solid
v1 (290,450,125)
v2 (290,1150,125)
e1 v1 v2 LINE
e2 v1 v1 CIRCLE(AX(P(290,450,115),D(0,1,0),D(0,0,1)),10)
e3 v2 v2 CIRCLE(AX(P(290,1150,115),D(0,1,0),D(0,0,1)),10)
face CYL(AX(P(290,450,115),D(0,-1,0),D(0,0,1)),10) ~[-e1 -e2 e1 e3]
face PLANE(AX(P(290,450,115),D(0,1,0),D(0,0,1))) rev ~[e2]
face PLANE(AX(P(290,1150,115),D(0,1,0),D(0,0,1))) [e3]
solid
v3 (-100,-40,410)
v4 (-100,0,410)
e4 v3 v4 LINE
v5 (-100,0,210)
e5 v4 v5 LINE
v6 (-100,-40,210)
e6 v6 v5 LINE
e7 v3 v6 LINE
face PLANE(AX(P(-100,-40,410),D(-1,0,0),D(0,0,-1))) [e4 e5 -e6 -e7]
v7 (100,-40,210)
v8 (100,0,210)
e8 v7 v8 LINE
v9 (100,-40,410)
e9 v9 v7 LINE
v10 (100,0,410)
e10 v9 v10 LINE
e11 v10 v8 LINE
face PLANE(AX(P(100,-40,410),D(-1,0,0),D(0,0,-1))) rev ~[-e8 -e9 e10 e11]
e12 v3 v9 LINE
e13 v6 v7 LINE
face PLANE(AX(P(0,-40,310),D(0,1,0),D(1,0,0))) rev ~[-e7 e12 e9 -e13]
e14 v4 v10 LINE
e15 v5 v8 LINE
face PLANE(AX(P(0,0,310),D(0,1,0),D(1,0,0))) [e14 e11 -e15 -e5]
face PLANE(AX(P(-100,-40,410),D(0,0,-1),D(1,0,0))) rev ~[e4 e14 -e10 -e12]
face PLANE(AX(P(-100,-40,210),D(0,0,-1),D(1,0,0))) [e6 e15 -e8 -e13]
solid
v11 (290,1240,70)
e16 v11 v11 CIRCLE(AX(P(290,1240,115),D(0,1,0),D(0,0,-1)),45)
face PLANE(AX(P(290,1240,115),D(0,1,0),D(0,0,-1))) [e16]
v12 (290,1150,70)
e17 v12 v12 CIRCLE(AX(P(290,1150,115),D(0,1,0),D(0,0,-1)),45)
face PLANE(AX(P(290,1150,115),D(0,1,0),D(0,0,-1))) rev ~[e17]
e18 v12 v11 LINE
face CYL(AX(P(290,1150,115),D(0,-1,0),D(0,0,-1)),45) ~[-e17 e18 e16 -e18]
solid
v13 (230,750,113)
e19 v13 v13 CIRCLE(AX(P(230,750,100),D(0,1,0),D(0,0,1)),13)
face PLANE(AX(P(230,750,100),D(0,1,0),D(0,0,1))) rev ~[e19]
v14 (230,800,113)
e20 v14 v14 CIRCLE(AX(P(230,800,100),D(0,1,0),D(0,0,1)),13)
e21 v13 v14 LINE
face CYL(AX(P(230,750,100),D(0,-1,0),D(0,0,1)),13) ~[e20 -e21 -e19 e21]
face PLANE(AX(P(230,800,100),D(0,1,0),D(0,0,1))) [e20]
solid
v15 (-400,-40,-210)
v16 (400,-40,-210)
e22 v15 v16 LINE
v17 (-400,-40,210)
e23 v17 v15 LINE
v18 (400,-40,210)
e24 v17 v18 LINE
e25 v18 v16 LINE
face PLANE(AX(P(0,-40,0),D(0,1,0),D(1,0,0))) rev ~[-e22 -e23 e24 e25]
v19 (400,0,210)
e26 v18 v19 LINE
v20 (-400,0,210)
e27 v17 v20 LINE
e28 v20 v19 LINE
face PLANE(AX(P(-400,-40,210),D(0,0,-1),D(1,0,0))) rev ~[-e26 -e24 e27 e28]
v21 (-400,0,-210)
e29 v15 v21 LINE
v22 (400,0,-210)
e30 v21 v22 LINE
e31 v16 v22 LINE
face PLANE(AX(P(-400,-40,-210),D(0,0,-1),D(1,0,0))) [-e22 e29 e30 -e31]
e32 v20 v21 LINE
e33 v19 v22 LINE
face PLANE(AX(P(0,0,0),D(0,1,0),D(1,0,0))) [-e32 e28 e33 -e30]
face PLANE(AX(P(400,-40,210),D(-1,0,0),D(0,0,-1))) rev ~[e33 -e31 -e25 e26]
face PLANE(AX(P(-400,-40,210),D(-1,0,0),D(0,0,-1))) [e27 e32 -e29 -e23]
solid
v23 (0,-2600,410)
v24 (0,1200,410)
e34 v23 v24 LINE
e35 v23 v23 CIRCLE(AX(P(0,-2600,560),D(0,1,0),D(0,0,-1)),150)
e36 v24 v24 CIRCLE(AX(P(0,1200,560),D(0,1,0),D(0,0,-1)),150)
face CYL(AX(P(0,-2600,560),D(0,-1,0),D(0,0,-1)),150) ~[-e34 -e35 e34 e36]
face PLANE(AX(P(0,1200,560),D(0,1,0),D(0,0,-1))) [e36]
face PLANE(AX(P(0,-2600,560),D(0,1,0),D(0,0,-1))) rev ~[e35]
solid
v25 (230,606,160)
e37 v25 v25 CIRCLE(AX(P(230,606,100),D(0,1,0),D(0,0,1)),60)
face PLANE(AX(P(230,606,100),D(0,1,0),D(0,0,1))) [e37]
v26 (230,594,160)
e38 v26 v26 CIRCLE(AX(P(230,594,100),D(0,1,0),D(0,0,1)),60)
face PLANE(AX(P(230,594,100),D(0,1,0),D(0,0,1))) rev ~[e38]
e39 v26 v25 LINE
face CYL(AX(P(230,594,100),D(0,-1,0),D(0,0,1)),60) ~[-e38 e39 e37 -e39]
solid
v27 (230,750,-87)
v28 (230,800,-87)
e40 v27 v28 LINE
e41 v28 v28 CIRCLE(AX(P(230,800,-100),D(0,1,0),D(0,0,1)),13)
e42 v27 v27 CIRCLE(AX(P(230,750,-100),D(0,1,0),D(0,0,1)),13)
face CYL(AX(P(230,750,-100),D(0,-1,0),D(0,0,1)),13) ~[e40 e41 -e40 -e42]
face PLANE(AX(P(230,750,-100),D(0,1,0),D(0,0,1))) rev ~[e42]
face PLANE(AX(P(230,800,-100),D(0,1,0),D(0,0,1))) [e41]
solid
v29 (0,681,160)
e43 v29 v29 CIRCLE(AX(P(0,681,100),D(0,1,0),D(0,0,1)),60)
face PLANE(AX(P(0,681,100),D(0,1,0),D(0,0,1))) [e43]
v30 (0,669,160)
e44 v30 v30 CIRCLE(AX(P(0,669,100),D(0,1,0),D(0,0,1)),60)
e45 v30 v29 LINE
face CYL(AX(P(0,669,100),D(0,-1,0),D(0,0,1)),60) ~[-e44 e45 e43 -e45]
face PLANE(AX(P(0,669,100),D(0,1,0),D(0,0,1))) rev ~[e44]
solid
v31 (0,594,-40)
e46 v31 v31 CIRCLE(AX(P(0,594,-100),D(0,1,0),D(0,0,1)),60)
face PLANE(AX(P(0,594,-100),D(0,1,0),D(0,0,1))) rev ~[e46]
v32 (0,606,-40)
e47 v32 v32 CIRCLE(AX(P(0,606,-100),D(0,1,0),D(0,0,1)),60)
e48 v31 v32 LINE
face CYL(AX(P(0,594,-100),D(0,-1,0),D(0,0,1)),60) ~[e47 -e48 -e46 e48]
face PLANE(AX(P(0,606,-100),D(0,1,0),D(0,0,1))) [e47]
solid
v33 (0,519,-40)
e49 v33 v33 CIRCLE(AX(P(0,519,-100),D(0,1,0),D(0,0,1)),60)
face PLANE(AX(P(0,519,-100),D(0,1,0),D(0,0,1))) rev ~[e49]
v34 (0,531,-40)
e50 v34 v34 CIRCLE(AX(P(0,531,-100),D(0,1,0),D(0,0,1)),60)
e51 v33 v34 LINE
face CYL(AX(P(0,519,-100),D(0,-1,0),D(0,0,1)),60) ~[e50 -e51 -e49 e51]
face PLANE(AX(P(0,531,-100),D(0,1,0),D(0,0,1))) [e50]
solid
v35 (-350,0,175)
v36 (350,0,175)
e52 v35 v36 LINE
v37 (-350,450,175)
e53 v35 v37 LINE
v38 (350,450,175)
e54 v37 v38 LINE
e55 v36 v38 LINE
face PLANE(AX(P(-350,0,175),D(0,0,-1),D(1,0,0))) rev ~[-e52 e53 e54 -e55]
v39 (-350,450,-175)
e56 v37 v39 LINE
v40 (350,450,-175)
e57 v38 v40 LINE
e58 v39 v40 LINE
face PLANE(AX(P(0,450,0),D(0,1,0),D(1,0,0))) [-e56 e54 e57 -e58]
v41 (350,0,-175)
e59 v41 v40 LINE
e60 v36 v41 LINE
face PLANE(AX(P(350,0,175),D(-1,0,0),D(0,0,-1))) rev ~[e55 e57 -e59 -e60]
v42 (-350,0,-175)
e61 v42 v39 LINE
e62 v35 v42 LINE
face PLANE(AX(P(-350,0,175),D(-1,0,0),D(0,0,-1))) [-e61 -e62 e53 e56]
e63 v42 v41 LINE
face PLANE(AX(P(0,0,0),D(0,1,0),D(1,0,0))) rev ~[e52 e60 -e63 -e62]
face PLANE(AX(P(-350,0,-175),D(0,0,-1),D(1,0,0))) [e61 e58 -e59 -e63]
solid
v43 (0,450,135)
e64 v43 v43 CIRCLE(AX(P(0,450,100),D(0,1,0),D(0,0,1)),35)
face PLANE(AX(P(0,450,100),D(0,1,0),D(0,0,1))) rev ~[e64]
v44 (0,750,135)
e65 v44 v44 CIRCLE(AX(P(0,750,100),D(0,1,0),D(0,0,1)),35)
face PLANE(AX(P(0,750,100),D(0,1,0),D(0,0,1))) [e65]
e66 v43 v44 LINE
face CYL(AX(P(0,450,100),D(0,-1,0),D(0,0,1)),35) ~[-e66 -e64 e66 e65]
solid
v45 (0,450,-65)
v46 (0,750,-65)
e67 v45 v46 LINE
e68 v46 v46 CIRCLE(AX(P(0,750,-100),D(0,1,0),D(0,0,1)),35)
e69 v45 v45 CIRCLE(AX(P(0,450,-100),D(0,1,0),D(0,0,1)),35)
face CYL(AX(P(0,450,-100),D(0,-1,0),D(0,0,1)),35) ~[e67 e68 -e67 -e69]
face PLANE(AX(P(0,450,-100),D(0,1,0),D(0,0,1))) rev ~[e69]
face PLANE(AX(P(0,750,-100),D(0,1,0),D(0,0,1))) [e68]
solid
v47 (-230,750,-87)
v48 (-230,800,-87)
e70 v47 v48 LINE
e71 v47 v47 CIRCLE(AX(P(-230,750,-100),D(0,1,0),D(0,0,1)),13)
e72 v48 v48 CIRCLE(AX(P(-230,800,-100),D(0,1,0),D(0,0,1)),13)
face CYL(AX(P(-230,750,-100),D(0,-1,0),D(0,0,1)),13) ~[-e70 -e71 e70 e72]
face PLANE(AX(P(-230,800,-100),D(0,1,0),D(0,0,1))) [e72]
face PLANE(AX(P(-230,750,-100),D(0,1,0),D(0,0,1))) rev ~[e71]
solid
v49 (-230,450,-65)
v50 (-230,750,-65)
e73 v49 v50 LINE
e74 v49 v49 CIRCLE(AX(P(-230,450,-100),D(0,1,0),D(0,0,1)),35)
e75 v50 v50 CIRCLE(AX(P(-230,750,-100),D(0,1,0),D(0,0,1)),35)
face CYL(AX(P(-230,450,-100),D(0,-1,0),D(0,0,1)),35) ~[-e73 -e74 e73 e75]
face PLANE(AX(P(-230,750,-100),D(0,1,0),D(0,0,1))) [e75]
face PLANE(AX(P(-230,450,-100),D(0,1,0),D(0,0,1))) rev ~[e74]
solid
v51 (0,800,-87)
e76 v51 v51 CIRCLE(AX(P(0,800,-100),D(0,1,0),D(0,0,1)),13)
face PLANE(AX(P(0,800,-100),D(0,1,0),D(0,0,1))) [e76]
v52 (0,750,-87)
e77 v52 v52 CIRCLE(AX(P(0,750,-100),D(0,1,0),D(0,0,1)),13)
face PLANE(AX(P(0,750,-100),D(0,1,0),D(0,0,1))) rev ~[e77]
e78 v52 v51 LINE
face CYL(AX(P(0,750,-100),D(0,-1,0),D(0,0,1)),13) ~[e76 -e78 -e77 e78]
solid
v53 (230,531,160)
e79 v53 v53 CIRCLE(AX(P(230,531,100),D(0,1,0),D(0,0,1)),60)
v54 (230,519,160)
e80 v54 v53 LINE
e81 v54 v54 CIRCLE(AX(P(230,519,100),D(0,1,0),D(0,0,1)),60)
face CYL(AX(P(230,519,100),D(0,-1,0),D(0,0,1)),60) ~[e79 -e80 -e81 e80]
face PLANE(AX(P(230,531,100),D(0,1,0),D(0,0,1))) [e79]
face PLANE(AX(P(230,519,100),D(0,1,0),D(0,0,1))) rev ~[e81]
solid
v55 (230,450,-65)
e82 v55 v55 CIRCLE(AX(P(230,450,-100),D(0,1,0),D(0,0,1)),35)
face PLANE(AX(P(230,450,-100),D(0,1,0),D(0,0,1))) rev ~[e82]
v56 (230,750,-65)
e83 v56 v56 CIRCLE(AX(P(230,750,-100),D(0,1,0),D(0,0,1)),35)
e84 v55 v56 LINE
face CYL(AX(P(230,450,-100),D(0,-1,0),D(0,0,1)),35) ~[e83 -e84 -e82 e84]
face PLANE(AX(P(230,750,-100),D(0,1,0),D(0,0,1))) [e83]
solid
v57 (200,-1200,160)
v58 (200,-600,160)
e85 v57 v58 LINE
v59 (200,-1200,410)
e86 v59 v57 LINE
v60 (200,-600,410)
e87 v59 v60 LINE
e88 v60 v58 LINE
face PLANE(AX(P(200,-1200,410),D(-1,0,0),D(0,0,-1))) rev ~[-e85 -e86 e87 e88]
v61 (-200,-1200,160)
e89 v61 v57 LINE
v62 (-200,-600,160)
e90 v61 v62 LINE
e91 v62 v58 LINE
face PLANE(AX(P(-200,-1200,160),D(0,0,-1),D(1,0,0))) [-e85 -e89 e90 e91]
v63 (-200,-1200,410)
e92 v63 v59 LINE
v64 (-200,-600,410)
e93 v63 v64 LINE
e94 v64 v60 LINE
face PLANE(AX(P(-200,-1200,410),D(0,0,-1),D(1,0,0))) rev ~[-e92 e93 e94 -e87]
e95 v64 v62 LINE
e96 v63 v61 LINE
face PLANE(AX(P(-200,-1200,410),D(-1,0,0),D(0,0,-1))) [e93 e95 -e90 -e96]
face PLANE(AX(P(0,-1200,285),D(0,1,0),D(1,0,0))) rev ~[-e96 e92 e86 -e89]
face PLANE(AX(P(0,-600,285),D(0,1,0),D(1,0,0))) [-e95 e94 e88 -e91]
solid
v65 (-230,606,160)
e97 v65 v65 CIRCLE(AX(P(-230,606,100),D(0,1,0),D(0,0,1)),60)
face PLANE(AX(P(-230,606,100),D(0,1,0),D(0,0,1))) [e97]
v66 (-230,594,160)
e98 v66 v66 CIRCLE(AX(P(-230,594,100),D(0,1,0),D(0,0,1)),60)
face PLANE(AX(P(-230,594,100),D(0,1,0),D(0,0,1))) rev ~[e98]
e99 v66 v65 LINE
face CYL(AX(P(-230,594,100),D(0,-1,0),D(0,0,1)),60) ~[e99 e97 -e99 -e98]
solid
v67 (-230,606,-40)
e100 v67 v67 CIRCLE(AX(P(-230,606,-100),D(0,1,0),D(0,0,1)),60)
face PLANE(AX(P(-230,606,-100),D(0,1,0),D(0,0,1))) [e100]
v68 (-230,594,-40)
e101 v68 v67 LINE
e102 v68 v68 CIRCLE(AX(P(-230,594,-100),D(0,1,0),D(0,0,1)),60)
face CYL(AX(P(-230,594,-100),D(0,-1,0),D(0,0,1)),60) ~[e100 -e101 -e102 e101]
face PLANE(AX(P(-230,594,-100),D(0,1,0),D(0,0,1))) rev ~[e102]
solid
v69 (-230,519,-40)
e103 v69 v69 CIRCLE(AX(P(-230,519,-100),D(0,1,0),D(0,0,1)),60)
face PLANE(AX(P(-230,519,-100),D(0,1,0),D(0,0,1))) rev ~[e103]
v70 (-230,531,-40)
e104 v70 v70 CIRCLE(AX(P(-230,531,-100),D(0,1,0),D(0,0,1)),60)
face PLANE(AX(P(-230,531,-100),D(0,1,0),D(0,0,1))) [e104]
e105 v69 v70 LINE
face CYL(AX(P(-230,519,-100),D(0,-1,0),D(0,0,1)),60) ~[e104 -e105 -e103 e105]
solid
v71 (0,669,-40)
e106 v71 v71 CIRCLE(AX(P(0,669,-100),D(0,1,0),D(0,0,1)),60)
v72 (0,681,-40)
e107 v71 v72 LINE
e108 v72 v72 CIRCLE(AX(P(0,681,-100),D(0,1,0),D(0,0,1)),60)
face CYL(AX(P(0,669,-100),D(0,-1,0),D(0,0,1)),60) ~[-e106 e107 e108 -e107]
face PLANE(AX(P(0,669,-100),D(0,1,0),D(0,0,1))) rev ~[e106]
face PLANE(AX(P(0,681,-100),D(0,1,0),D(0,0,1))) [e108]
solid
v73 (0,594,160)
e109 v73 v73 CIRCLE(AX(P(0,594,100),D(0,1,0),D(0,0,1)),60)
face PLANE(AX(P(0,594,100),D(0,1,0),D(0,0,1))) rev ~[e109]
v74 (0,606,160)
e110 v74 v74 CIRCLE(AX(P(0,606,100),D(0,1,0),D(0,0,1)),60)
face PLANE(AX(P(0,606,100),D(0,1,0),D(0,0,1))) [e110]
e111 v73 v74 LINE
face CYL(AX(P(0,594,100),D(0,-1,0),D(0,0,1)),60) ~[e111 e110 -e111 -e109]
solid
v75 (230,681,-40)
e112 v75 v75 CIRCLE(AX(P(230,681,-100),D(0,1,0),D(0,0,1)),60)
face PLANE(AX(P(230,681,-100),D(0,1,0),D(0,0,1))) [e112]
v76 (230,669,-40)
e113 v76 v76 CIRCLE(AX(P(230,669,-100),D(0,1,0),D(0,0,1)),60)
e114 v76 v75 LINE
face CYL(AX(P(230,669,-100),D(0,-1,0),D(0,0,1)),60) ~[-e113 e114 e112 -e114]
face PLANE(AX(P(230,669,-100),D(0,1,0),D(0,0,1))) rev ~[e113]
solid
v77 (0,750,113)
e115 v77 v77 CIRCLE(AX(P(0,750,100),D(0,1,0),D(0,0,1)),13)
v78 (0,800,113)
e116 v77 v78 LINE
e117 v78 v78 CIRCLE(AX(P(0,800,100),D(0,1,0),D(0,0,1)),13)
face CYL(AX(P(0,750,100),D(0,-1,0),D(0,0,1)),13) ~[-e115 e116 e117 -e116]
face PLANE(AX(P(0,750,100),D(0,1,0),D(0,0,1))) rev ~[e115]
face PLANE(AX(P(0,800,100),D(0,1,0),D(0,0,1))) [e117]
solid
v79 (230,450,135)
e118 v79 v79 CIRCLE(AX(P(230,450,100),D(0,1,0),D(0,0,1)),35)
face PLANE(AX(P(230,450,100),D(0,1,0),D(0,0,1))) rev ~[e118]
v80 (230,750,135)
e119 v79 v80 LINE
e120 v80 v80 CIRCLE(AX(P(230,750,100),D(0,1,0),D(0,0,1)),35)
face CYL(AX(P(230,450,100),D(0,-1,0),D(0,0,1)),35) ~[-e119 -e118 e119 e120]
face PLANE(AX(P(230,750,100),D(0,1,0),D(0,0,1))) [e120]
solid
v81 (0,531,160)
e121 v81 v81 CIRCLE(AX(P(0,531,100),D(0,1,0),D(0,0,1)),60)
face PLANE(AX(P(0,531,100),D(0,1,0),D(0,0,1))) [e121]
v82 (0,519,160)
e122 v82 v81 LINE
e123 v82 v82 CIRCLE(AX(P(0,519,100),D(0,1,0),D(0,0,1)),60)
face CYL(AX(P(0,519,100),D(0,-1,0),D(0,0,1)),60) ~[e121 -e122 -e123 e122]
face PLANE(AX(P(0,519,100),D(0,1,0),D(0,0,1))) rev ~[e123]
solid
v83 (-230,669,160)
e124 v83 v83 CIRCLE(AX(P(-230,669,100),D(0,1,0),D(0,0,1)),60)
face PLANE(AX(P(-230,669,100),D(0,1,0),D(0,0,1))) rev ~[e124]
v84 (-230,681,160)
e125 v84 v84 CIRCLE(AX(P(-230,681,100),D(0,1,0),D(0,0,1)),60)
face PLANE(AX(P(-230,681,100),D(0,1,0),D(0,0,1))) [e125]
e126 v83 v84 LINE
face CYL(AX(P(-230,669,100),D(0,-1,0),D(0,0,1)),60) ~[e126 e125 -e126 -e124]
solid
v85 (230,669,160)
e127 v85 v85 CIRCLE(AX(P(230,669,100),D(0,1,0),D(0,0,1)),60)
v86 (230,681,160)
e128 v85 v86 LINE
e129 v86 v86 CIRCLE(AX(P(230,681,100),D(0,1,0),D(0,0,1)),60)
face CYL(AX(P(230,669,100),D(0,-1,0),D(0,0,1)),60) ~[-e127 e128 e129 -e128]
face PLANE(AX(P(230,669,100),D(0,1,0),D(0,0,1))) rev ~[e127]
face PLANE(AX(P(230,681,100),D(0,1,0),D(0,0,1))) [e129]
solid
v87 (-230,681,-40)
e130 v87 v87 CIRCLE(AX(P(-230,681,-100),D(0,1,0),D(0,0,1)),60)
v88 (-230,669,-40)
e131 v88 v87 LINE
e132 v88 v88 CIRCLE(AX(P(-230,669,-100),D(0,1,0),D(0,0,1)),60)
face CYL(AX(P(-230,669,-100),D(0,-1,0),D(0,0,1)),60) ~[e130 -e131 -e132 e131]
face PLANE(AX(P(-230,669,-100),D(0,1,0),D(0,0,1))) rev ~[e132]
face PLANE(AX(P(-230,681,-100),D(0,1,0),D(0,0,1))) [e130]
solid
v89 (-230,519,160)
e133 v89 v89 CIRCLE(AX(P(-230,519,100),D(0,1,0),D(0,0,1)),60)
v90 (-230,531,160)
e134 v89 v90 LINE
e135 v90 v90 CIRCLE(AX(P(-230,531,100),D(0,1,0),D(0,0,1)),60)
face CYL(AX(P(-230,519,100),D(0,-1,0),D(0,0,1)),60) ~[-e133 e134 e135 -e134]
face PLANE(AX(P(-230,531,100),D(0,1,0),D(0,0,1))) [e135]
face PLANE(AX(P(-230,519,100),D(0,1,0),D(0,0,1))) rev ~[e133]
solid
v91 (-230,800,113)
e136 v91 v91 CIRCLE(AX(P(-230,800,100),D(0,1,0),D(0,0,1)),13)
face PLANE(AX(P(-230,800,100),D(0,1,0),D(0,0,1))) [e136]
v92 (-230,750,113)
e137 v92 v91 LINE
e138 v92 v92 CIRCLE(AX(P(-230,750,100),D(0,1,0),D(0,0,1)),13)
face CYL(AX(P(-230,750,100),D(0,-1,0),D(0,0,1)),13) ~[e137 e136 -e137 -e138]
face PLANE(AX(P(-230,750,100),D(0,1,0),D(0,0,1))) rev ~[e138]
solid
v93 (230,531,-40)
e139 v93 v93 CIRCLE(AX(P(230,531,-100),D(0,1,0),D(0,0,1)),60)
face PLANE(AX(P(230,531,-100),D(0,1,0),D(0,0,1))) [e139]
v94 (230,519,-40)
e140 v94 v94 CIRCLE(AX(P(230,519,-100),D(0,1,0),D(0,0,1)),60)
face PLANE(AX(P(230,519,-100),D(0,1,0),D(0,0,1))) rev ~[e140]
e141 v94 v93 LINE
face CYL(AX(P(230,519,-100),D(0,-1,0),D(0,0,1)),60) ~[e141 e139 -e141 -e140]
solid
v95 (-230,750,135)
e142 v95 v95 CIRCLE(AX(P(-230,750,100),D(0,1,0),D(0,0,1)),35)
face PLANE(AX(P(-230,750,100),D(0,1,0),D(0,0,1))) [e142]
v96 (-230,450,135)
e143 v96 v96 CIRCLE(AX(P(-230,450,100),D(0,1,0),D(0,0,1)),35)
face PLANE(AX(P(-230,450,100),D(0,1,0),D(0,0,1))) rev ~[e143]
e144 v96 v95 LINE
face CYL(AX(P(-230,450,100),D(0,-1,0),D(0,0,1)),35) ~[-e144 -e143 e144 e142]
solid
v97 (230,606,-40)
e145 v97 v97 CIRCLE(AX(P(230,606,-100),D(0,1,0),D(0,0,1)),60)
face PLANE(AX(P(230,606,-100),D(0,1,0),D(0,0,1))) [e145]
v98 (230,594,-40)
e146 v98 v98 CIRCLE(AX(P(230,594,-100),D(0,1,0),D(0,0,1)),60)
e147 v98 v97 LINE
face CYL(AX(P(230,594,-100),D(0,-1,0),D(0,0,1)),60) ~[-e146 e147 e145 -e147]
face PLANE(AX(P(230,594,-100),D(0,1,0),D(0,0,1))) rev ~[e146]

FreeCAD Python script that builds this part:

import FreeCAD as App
import Part
import Sketcher

doc = App.newDocument("Part")
body = doc.addObject("PartDesign::Body", "Body")

# Sketch on XZ plane
sketch1 = body.newObject("Sketcher::SketchObject", "Sketch")
sketch1.AttachmentSupport = (doc.getObject("XZ_Plane"), [""])
sketch1.MapMode = "FlatFace"
sketch1.addGeometry([
    Part.LineSegment(App.Vector(-350, -175, 0), App.Vector(-350, 175, 0)),
    Part.LineSegment(App.Vector(-350, 175, 0), App.Vector(350, 175, 0)),
    Part.LineSegment(App.Vector(350, 175, 0), App.Vector(350, -175, 0)),
    Part.LineSegment(App.Vector(350, -175, 0), App.Vector(-350, -175, 0)),
], False)
sketch1.addConstraint([
    Sketcher.Constraint("Coincident", 0, 2, 1, 1),
    Sketcher.Constraint("Coincident", 1, 2, 2, 1),
    Sketcher.Constraint("Coincident", 2, 2, 3, 1),
    Sketcher.Constraint("Coincident", 3, 2, 0, 1),
    Sketcher.Constraint("Vertical", 0),
    Sketcher.Constraint("Horizontal", 1),
    Sketcher.Constraint("Vertical", 2),
    Sketcher.Constraint("Horizontal", 3),
    Sketcher.Constraint("Symmetric", 0, 2, 2, 2, -1, 1),
    Sketcher.Constraint("DistanceX", 1, 1, 1, 2, 700.0),
    Sketcher.Constraint("DistanceY", 0, 1, 0, 2, 350.0),
])
pad1 = body.newObject("PartDesign::Pad", "Pad")
pad1.Profile = sketch1
pad1.Length = 450
pad1.Reversed = True
body2 = doc.addObject("PartDesign::Body", "Body001")

# Sketch on XZ plane
sketch2 = body2.newObject("Sketcher::SketchObject", "Sketch001")
sketch2.AttachmentSupport = (doc.getObject("XZ_Plane001"), [""])
sketch2.MapMode = "FlatFace"
sketch2.AttachmentOffset = App.Placement(App.Vector(0, 0, 40), App.Rotation())
sketch2.addGeometry([
    Part.LineSegment(App.Vector(-400, -210, 0), App.Vector(-400, 210, 0)),
    Part.LineSegment(App.Vector(-400, 210, 0), App.Vector(400, 210, 0)),
    Part.LineSegment(App.Vector(400, 210, 0), App.Vector(400, -210, 0)),
    Part.LineSegment(App.Vector(400, -210, 0), App.Vector(-400, -210, 0)),
], False)
sketch2.addConstraint([
    Sketcher.Constraint("Coincident", 0, 2, 1, 1),
    Sketcher.Constraint("Coincident", 1, 2, 2, 1),
    Sketcher.Constraint("Coincident", 2, 2, 3, 1),
    Sketcher.Constraint("Coincident", 3, 2, 0, 1),
    Sketcher.Constraint("Vertical", 0),
    Sketcher.Constraint("Horizontal", 1),
    Sketcher.Constraint("Vertical", 2),
    Sketcher.Constraint("Horizontal", 3),
    Sketcher.Constraint("Symmetric", 0, 2, 2, 2, -1, 1),
    Sketcher.Constraint("DistanceX", 1, 1, 1, 2, 800.0),
    Sketcher.Constraint("DistanceY", 0, 1, 0, 2, 420.0),
])
pad2 = body2.newObject("PartDesign::Pad", "Pad001")
pad2.Profile = sketch2
pad2.Length = 40
pad2.Reversed = True
body3 = doc.addObject("PartDesign::Body", "Body002")

# Sketch on XZ plane
sketch3 = body3.newObject("Sketcher::SketchObject", "Sketch002")
sketch3.AttachmentSupport = (doc.getObject("XZ_Plane002"), [""])
sketch3.MapMode = "FlatFace"
sketch3.AttachmentOffset = App.Placement(App.Vector(0, 0, 40), App.Rotation())
sketch3.addGeometry([
    Part.LineSegment(App.Vector(-100, 210, 0), App.Vector(-100, 410, 0)),
    Part.LineSegment(App.Vector(-100, 410, 0), App.Vector(100, 410, 0)),
    Part.LineSegment(App.Vector(100, 410, 0), App.Vector(100, 210, 0)),
    Part.LineSegment(App.Vector(100, 210, 0), App.Vector(-100, 210, 0)),
], False)
sketch3.addConstraint([
    Sketcher.Constraint("Coincident", 0, 2, 1, 1),
    Sketcher.Constraint("Coincident", 1, 2, 2, 1),
    Sketcher.Constraint("Coincident", 2, 2, 3, 1),
    Sketcher.Constraint("Coincident", 3, 2, 0, 1),
    Sketcher.Constraint("Vertical", 0),
    Sketcher.Constraint("Horizontal", 1),
    Sketcher.Constraint("Vertical", 2),
    Sketcher.Constraint("Horizontal", 3),
    Sketcher.Constraint("Equal", 3, 0),
    Sketcher.Constraint("DistanceX", 1, 1, 1, 2, 200.0),
    Sketcher.Constraint("DistanceX", 0, 2, -1, 1, 100.0),
    Sketcher.Constraint("DistanceY", -1, 1, 0, 2, 410.0),
])
pad3 = body3.newObject("PartDesign::Pad", "Pad002")
pad3.Profile = sketch3
pad3.Length = 40
pad3.Reversed = True
body4 = doc.addObject("PartDesign::Body", "Body003")

# Sketch on XZ plane
sketch4 = body4.newObject("Sketcher::SketchObject", "Sketch003")
sketch4.AttachmentSupport = (doc.getObject("XZ_Plane003"), [""])
sketch4.MapMode = "FlatFace"
sketch4.AttachmentOffset = App.Placement(App.Vector(0, 0, 1200), App.Rotation())
sketch4.addGeometry([
    Part.LineSegment(App.Vector(-200, 160, 0), App.Vector(-200, 410, 0)),
    Part.LineSegment(App.Vector(-200, 410, 0), App.Vector(200, 410, 0)),
    Part.LineSegment(App.Vector(200, 410, 0), App.Vector(200, 160, 0)),
    Part.LineSegment(App.Vector(200, 160, 0), App.Vector(-200, 160, 0)),
], False)
sketch4.addConstraint([
    Sketcher.Constraint("Coincident", 0, 2, 1, 1),
    Sketcher.Constraint("Coincident", 1, 2, 2, 1),
    Sketcher.Constraint("Coincident", 2, 2, 3, 1),
    Sketcher.Constraint("Coincident", 3, 2, 0, 1),
    Sketcher.Constraint("Vertical", 0),
    Sketcher.Constraint("Horizontal", 1),
    Sketcher.Constraint("Vertical", 2),
    Sketcher.Constraint("Horizontal", 3),
    Sketcher.Constraint("DistanceX", 1, 1, 1, 2, 400.0),
    Sketcher.Constraint("DistanceY", 0, 1, 0, 2, 250.0),
    Sketcher.Constraint("DistanceX", 0, 2, -1, 1, 200.0),
    Sketcher.Constraint("DistanceY", -1, 1, 0, 2, 410.0),
])
pad4 = body4.newObject("PartDesign::Pad", "Pad003")
pad4.Profile = sketch4
pad4.Length = 600
pad4.Reversed = True
body5 = doc.addObject("PartDesign::Body", "Body004")

# Sketch on XZ plane
sketch5 = body5.newObject("Sketcher::SketchObject", "Sketch004")
sketch5.AttachmentSupport = (doc.getObject("XZ_Plane004"), [""])
sketch5.MapMode = "FlatFace"
sketch5.AttachmentOffset = App.Placement(App.Vector(0, 0, 2600), App.Rotation())
sketch5.addGeometry(Part.Circle(App.Vector(0, 560, 0), App.Vector(0, 0, 1), 150), False)
sketch5.addConstraint([
    Sketcher.Constraint("PointOnObject", 0, 3, -2),
    Sketcher.Constraint("Diameter", 0, 300.0),
    Sketcher.Constraint("DistanceY", -1, 1, 0, 3, 560.0),
])
pad5 = body5.newObject("PartDesign::Pad", "Pad004")
pad5.Profile = sketch5
pad5.Length = 3800
pad5.Reversed = True
body6 = doc.addObject("PartDesign::Body", "Body005")

# Sketch on XZ plane
sketch6 = body6.newObject("Sketcher::SketchObject", "Sketch005")
sketch6.AttachmentSupport = (doc.getObject("XZ_Plane005"), [""])
sketch6.MapMode = "FlatFace"
sketch6.AttachmentOffset = App.Placement(App.Vector(0, 0, -450), App.Rotation())
sketch6.addGeometry(Part.Circle(App.Vector(-230, -100, 0), App.Vector(0, 0, 1), 35), False)
sketch6.addConstraint([
    Sketcher.Constraint("Diameter", 0, 70.0),
    Sketcher.Constraint("DistanceX", 0, 3, -1, 1, 230.0),
    Sketcher.Constraint("DistanceY", 0, 3, -1, 1, 100.0),
])
pad6 = body6.newObject("PartDesign::Pad", "Pad005")
pad6.Profile = sketch6
pad6.Length = 300
pad6.Reversed = True
body7 = doc.addObject("PartDesign::Body", "Body006")

# Sketch on XZ plane
sketch7 = body7.newObject("Sketcher::SketchObject", "Sketch006")
sketch7.AttachmentSupport = (doc.getObject("XZ_Plane006"), [""])
sketch7.MapMode = "FlatFace"
sketch7.AttachmentOffset = App.Placement(App.Vector(0, 0, -519), App.Rotation())
sketch7.addGeometry(Part.Circle(App.Vector(-230, -100, 0), App.Vector(0, 0, 1), 60), False)
sketch7.addConstraint([
    Sketcher.Constraint("Diameter", 0, 120.0),
    Sketcher.Constraint("DistanceX", 0, 3, -1, 1, 230.0),
    Sketcher.Constraint("DistanceY", 0, 3, -1, 1, 100.0),
])
pad7 = body7.newObject("PartDesign::Pad", "Pad006")
pad7.Profile = sketch7
pad7.Length = 12
pad7.Reversed = True
body8 = doc.addObject("PartDesign::Body", "Body007")

# Sketch on XZ plane
sketch8 = body8.newObject("Sketcher::SketchObject", "Sketch007")
sketch8.AttachmentSupport = (doc.getObject("XZ_Plane007"), [""])
sketch8.MapMode = "FlatFace"
sketch8.AttachmentOffset = App.Placement(App.Vector(0, 0, -594), App.Rotation())
sketch8.addGeometry(Part.Circle(App.Vector(-230, -100, 0), App.Vector(0, 0, 1), 60), False)
sketch8.addConstraint([
    Sketcher.Constraint("Diameter", 0, 120.0),
    Sketcher.Constraint("DistanceX", 0, 3, -1, 1, 230.0),
    Sketcher.Constraint("DistanceY", 0, 3, -1, 1, 100.0),
])
pad8 = body8.newObject("PartDesign::Pad", "Pad007")
pad8.Profile = sketch8
pad8.Length = 12
pad8.Reversed = True
body9 = doc.addObject("PartDesign::Body", "Body008")

# Sketch on XZ plane
sketch9 = body9.newObject("Sketcher::SketchObject", "Sketch008")
sketch9.AttachmentSupport = (doc.getObject("XZ_Plane008"), [""])
sketch9.MapMode = "FlatFace"
sketch9.AttachmentOffset = App.Placement(App.Vector(0, 0, -669), App.Rotation())
sketch9.addGeometry(Part.Circle(App.Vector(-230, -100, 0), App.Vector(0, 0, 1), 60), False)
sketch9.addConstraint([
    Sketcher.Constraint("Diameter", 0, 120.0),
    Sketcher.Constraint("DistanceX", 0, 3, -1, 1, 230.0),
    Sketcher.Constraint("DistanceY", 0, 3, -1, 1, 100.0),
])
pad9 = body9.newObject("PartDesign::Pad", "Pad008")
pad9.Profile = sketch9
pad9.Length = 12
pad9.Reversed = True
body10 = doc.addObject("PartDesign::Body", "Body009")

# Sketch on XZ plane
sketch10 = body10.newObject("Sketcher::SketchObject", "Sketch009")
sketch10.AttachmentSupport = (doc.getObject("XZ_Plane009"), [""])
sketch10.MapMode = "FlatFace"
sketch10.AttachmentOffset = App.Placement(App.Vector(0, 0, -750), App.Rotation())
sketch10.addGeometry(Part.Circle(App.Vector(-230, -100, 0), App.Vector(0, 0, 1), 13), False)
sketch10.addConstraint([
    Sketcher.Constraint("Diameter", 0, 26.0),
    Sketcher.Constraint("DistanceX", 0, 3, -1, 1, 230.0),
    Sketcher.Constraint("DistanceY", 0, 3, -1, 1, 100.0),
])
pad10 = body10.newObject("PartDesign::Pad", "Pad009")
pad10.Profile = sketch10
pad10.Length = 50
pad10.Reversed = True
body11 = doc.addObject("PartDesign::Body", "Body010")

# Sketch on XZ plane
sketch11 = body11.newObject("Sketcher::SketchObject", "Sketch010")
sketch11.AttachmentSupport = (doc.getObject("XZ_Plane010"), [""])
sketch11.MapMode = "FlatFace"
sketch11.AttachmentOffset = App.Placement(App.Vector(0, 0, -450), App.Rotation())
sketch11.addGeometry(Part.Circle(App.Vector(0, -100, 0), App.Vector(0, 0, 1), 35), False)
sketch11.addConstraint([
    Sketcher.Constraint("PointOnObject", 0, 3, -2),
    Sketcher.Constraint("Diameter", 0, 70.0),
    Sketcher.Constraint("DistanceY", 0, 3, -1, 1, 100.0),
])
pad11 = body11.newObject("PartDesign::Pad", "Pad010")
pad11.Profile = sketch11
pad11.Length = 300
pad11.Reversed = True
body12 = doc.addObject("PartDesign::Body", "Body011")

# Sketch on XZ plane
sketch12 = body12.newObject("Sketcher::SketchObject", "Sketch011")
sketch12.AttachmentSupport = (doc.getObject("XZ_Plane011"), [""])
sketch12.MapMode = "FlatFace"
sketch12.AttachmentOffset = App.Placement(App.Vector(0, 0, -519), App.Rotation())
sketch12.addGeometry(Part.Circle(App.Vector(0, -100, 0), App.Vector(0, 0, 1), 60), False)
sketch12.addConstraint([
    Sketcher.Constraint("PointOnObject", 0, 3, -2),
    Sketcher.Constraint("Diameter", 0, 120.0),
    Sketcher.Constraint("DistanceY", 0, 3, -1, 1, 100.0),
])
pad12 = body12.newObject("PartDesign::Pad", "Pad011")
pad12.Profile = sketch12
pad12.Length = 12
pad12.Reversed = True
body13 = doc.addObject("PartDesign::Body", "Body012")

# Sketch on XZ plane
sketch13 = body13.newObject("Sketcher::SketchObject", "Sketch012")
sketch13.AttachmentSupport = (doc.getObject("XZ_Plane012"), [""])
sketch13.MapMode = "FlatFace"
sketch13.AttachmentOffset = App.Placement(App.Vector(0, 0, -594), App.Rotation())
sketch13.addGeometry(Part.Circle(App.Vector(0, -100, 0), App.Vector(0, 0, 1), 60), False)
sketch13.addConstraint([
    Sketcher.Constraint("PointOnObject", 0, 3, -2),
    Sketcher.Constraint("Diameter", 0, 120.0),
    Sketcher.Constraint("DistanceY", 0, 3, -1, 1, 100.0),
])
pad13 = body13.newObject("PartDesign::Pad", "Pad012")
pad13.Profile = sketch13
pad13.Length = 12
pad13.Reversed = True
body14 = doc.addObject("PartDesign::Body", "Body013")

# Sketch on XZ plane
sketch14 = body14.newObject("Sketcher::SketchObject", "Sketch013")
sketch14.AttachmentSupport = (doc.getObject("XZ_Plane013"), [""])
sketch14.MapMode = "FlatFace"
sketch14.AttachmentOffset = App.Placement(App.Vector(0, 0, -669), App.Rotation())
sketch14.addGeometry(Part.Circle(App.Vector(0, -100, 0), App.Vector(0, 0, 1), 60), False)
sketch14.addConstraint([
    Sketcher.Constraint("PointOnObject", 0, 3, -2),
    Sketcher.Constraint("Diameter", 0, 120.0),
    Sketcher.Constraint("DistanceY", 0, 3, -1, 1, 100.0),
])
pad14 = body14.newObject("PartDesign::Pad", "Pad013")
pad14.Profile = sketch14
pad14.Length = 12
pad14.Reversed = True
body15 = doc.addObject("PartDesign::Body", "Body014")

# Sketch on XZ plane
sketch15 = body15.newObject("Sketcher::SketchObject", "Sketch014")
sketch15.AttachmentSupport = (doc.getObject("XZ_Plane014"), [""])
sketch15.MapMode = "FlatFace"
sketch15.AttachmentOffset = App.Placement(App.Vector(0, 0, -750), App.Rotation())
sketch15.addGeometry(Part.Circle(App.Vector(0, -100, 0), App.Vector(0, 0, 1), 13), False)
sketch15.addConstraint([
    Sketcher.Constraint("PointOnObject", 0, 3, -2),
    Sketcher.Constraint("Diameter", 0, 26.0),
    Sketcher.Constraint("DistanceY", 0, 3, -1, 1, 100.0),
])
pad15 = body15.newObject("PartDesign::Pad", "Pad014")
pad15.Profile = sketch15
pad15.Length = 50
pad15.Reversed = True
body16 = doc.addObject("PartDesign::Body", "Body015")

# Sketch on XZ plane
sketch16 = body16.newObject("Sketcher::SketchObject", "Sketch015")
sketch16.AttachmentSupport = (doc.getObject("XZ_Plane015"), [""])
sketch16.MapMode = "FlatFace"
sketch16.AttachmentOffset = App.Placement(App.Vector(0, 0, -450), App.Rotation())
sketch16.addGeometry(Part.Circle(App.Vector(230, -100, 0), App.Vector(0, 0, 1), 35), False)
sketch16.addConstraint([
    Sketcher.Constraint("Diameter", 0, 70.0),
    Sketcher.Constraint("DistanceX", -1, 1, 0, 3, 230.0),
    Sketcher.Constraint("DistanceY", 0, 3, -1, 1, 100.0),
])
pad16 = body16.newObject("PartDesign::Pad", "Pad015")
pad16.Profile = sketch16
pad16.Length = 300
pad16.Reversed = True
body17 = doc.addObject("PartDesign::Body", "Body016")

# Sketch on XZ plane
sketch17 = body17.newObject("Sketcher::SketchObject", "Sketch016")
sketch17.AttachmentSupport = (doc.getObject("XZ_Plane016"), [""])
sketch17.MapMode = "FlatFace"
sketch17.AttachmentOffset = App.Placement(App.Vector(0, 0, -519), App.Rotation())
sketch17.addGeometry(Part.Circle(App.Vector(230, -100, 0), App.Vector(0, 0, 1), 60), False)
sketch17.addConstraint([
    Sketcher.Constraint("Diameter", 0, 120.0),
    Sketcher.Constraint("DistanceX", -1, 1, 0, 3, 230.0),
    Sketcher.Constraint("DistanceY", 0, 3, -1, 1, 100.0),
])
pad17 = body17.newObject("PartDesign::Pad", "Pad016")
pad17.Profile = sketch17
pad17.Length = 12
pad17.Reversed = True
body18 = doc.addObject("PartDesign::Body", "Body017")

# Sketch on XZ plane
sketch18 = body18.newObject("Sketcher::SketchObject", "Sketch017")
sketch18.AttachmentSupport = (doc.getObject("XZ_Plane017"), [""])
sketch18.MapMode = "FlatFace"
sketch18.AttachmentOffset = App.Placement(App.Vector(0, 0, -594), App.Rotation())
sketch18.addGeometry(Part.Circle(App.Vector(230, -100, 0), App.Vector(0, 0, 1), 60), False)
sketch18.addConstraint([
    Sketcher.Constraint("Diameter", 0, 120.0),
    Sketcher.Constraint("DistanceX", -1, 1, 0, 3, 230.0),
    Sketcher.Constraint("DistanceY", 0, 3, -1, 1, 100.0),
])
pad18 = body18.newObject("PartDesign::Pad", "Pad017")
pad18.Profile = sketch18
pad18.Length = 12
pad18.Reversed = True
body19 = doc.addObject("PartDesign::Body", "Body018")

# Sketch on XZ plane
sketch19 = body19.newObject("Sketcher::SketchObject", "Sketch018")
sketch19.AttachmentSupport = (doc.getObject("XZ_Plane018"), [""])
sketch19.MapMode = "FlatFace"
sketch19.AttachmentOffset = App.Placement(App.Vector(0, 0, -669), App.Rotation())
sketch19.addGeometry(Part.Circle(App.Vector(230, -100, 0), App.Vector(0, 0, 1), 60), False)
sketch19.addConstraint([
    Sketcher.Constraint("Diameter", 0, 120.0),
    Sketcher.Constraint("DistanceX", -1, 1, 0, 3, 230.0),
    Sketcher.Constraint("DistanceY", 0, 3, -1, 1, 100.0),
])
pad19 = body19.newObject("PartDesign::Pad", "Pad018")
pad19.Profile = sketch19
pad19.Length = 12
pad19.Reversed = True
body20 = doc.addObject("PartDesign::Body", "Body019")

# Sketch on XZ plane
sketch20 = body20.newObject("Sketcher::SketchObject", "Sketch019")
sketch20.AttachmentSupport = (doc.getObject("XZ_Plane019"), [""])
sketch20.MapMode = "FlatFace"
sketch20.AttachmentOffset = App.Placement(App.Vector(0, 0, -750), App.Rotation())
sketch20.addGeometry(Part.Circle(App.Vector(230, -100, 0), App.Vector(0, 0, 1), 13), False)
sketch20.addConstraint([
    Sketcher.Constraint("Diameter", 0, 26.0),
    Sketcher.Constraint("DistanceX", -1, 1, 0, 3, 230.0),
    Sketcher.Constraint("DistanceY", 0, 3, -1, 1, 100.0),
])
pad20 = body20.newObject("PartDesign::Pad", "Pad019")
pad20.Profile = sketch20
pad20.Length = 50
pad20.Reversed = True
body21 = doc.addObject("PartDesign::Body", "Body020")

# Sketch on XZ plane
sketch21 = body21.newObject("Sketcher::SketchObject", "Sketch020")
sketch21.AttachmentSupport = (doc.getObject("XZ_Plane020"), [""])
sketch21.MapMode = "FlatFace"
sketch21.AttachmentOffset = App.Placement(App.Vector(0, 0, -450), App.Rotation())
sketch21.addGeometry(Part.Circle(App.Vector(-230, 100, 0), App.Vector(0, 0, 1), 35), False)
sketch21.addConstraint([
    Sketcher.Constraint("Diameter", 0, 70.0),
    Sketcher.Constraint("DistanceX", 0, 3, -1, 1, 230.0),
    Sketcher.Constraint("DistanceY", -1, 1, 0, 3, 100.0),
])
pad21 = body21.newObject("PartDesign::Pad", "Pad020")
pad21.Profile = sketch21
pad21.Length = 300
pad21.Reversed = True
body22 = doc.addObject("PartDesign::Body", "Body021")

# Sketch on XZ plane
sketch22 = body22.newObject("Sketcher::SketchObject", "Sketch021")
sketch22.AttachmentSupport = (doc.getObject("XZ_Plane021"), [""])
sketch22.MapMode = "FlatFace"
sketch22.AttachmentOffset = App.Placement(App.Vector(0, 0, -519), App.Rotation())
sketch22.addGeometry(Part.Circle(App.Vector(-230, 100, 0), App.Vector(0, 0, 1), 60), False)
sketch22.addConstraint([
    Sketcher.Constraint("Diameter", 0, 120.0),
    Sketcher.Constraint("DistanceX", 0, 3, -1, 1, 230.0),
    Sketcher.Constraint("DistanceY", -1, 1, 0, 3, 100.0),
])
pad22 = body22.newObject("PartDesign::Pad", "Pad021")
pad22.Profile = sketch22
pad22.Length = 12
pad22.Reversed = True
body23 = doc.addObject("PartDesign::Body", "Body022")

# Sketch on XZ plane
sketch23 = body23.newObject("Sketcher::SketchObject", "Sketch022")
sketch23.AttachmentSupport = (doc.getObject("XZ_Plane022"), [""])
sketch23.MapMode = "FlatFace"
sketch23.AttachmentOffset = App.Placement(App.Vector(0, 0, -594), App.Rotation())
sketch23.addGeometry(Part.Circle(App.Vector(-230, 100, 0), App.Vector(0, 0, 1), 60), False)
sketch23.addConstraint([
    Sketcher.Constraint("Diameter", 0, 120.0),
    Sketcher.Constraint("DistanceX", 0, 3, -1, 1, 230.0),
    Sketcher.Constraint("DistanceY", -1, 1, 0, 3, 100.0),
])
pad23 = body23.newObject("PartDesign::Pad", "Pad022")
pad23.Profile = sketch23
pad23.Length = 12
pad23.Reversed = True
body24 = doc.addObject("PartDesign::Body", "Body023")

# Sketch on XZ plane
sketch24 = body24.newObject("Sketcher::SketchObject", "Sketch023")
sketch24.AttachmentSupport = (doc.getObject("XZ_Plane023"), [""])
sketch24.MapMode = "FlatFace"
sketch24.AttachmentOffset = App.Placement(App.Vector(0, 0, -669), App.Rotation())
sketch24.addGeometry(Part.Circle(App.Vector(-230, 100, 0), App.Vector(0, 0, 1), 60), False)
sketch24.addConstraint([
    Sketcher.Constraint("Diameter", 0, 120.0),
    Sketcher.Constraint("DistanceX", 0, 3, -1, 1, 230.0),
    Sketcher.Constraint("DistanceY", -1, 1, 0, 3, 100.0),
])
pad24 = body24.newObject("PartDesign::Pad", "Pad023")
pad24.Profile = sketch24
pad24.Length = 12
pad24.Reversed = True
body25 = doc.addObject("PartDesign::Body", "Body024")

# Sketch on XZ plane
sketch25 = body25.newObject("Sketcher::SketchObject", "Sketch024")
sketch25.AttachmentSupport = (doc.getObject("XZ_Plane024"), [""])
sketch25.MapMode = "FlatFace"
sketch25.AttachmentOffset = App.Placement(App.Vector(0, 0, -750), App.Rotation())
sketch25.addGeometry(Part.Circle(App.Vector(-230, 100, 0), App.Vector(0, 0, 1), 13), False)
sketch25.addConstraint([
    Sketcher.Constraint("Diameter", 0, 26.0),
    Sketcher.Constraint("DistanceX", 0, 3, -1, 1, 230.0),
    Sketcher.Constraint("DistanceY", -1, 1, 0, 3, 100.0),
])
pad25 = body25.newObject("PartDesign::Pad", "Pad024")
pad25.Profile = sketch25
pad25.Length = 50
pad25.Reversed = True
body26 = doc.addObject("PartDesign::Body", "Body025")

# Sketch on XZ plane
sketch26 = body26.newObject("Sketcher::SketchObject", "Sketch025")
sketch26.AttachmentSupport = (doc.getObject("XZ_Plane025"), [""])
sketch26.MapMode = "FlatFace"
sketch26.AttachmentOffset = App.Placement(App.Vector(0, 0, -450), App.Rotation())
sketch26.addGeometry(Part.Circle(App.Vector(0, 100, 0), App.Vector(0, 0, 1), 35), False)
sketch26.addConstraint([
    Sketcher.Constraint("PointOnObject", 0, 3, -2),
    Sketcher.Constraint("Diameter", 0, 70.0),
    Sketcher.Constraint("DistanceY", -1, 1, 0, 3, 100.0),
])
pad26 = body26.newObject("PartDesign::Pad", "Pad025")
pad26.Profile = sketch26
pad26.Length = 300
pad26.Reversed = True
body27 = doc.addObject("PartDesign::Body", "Body026")

# Sketch on XZ plane
sketch27 = body27.newObject("Sketcher::SketchObject", "Sketch026")
sketch27.AttachmentSupport = (doc.getObject("XZ_Plane026"), [""])
sketch27.MapMode = "FlatFace"
sketch27.AttachmentOffset = App.Placement(App.Vector(0, 0, -519), App.Rotation())
sketch27.addGeometry(Part.Circle(App.Vector(0, 100, 0), App.Vector(0, 0, 1), 60), False)
sketch27.addConstraint([
    Sketcher.Constraint("PointOnObject", 0, 3, -2),
    Sketcher.Constraint("Diameter", 0, 120.0),
    Sketcher.Constraint("DistanceY", -1, 1, 0, 3, 100.0),
])
pad27 = body27.newObject("PartDesign::Pad", "Pad026")
pad27.Profile = sketch27
pad27.Length = 12
pad27.Reversed = True
body28 = doc.addObject("PartDesign::Body", "Body027")

# Sketch on XZ plane
sketch28 = body28.newObject("Sketcher::SketchObject", "Sketch027")
sketch28.AttachmentSupport = (doc.getObject("XZ_Plane027"), [""])
sketch28.MapMode = "FlatFace"
sketch28.AttachmentOffset = App.Placement(App.Vector(0, 0, -594), App.Rotation())
sketch28.addGeometry(Part.Circle(App.Vector(0, 100, 0), App.Vector(0, 0, 1), 60), False)
sketch28.addConstraint([
    Sketcher.Constraint("PointOnObject", 0, 3, -2),
    Sketcher.Constraint("Diameter", 0, 120.0),
    Sketcher.Constraint("DistanceY", -1, 1, 0, 3, 100.0),
])
pad28 = body28.newObject("PartDesign::Pad", "Pad027")
pad28.Profile = sketch28
pad28.Length = 12
pad28.Reversed = True
body29 = doc.addObject("PartDesign::Body", "Body028")

# Sketch on XZ plane
sketch29 = body29.newObject("Sketcher::SketchObject", "Sketch028")
sketch29.AttachmentSupport = (doc.getObject("XZ_Plane028"), [""])
sketch29.MapMode = "FlatFace"
sketch29.AttachmentOffset = App.Placement(App.Vector(0, 0, -669), App.Rotation())
sketch29.addGeometry(Part.Circle(App.Vector(0, 100, 0), App.Vector(0, 0, 1), 60), False)
sketch29.addConstraint([
    Sketcher.Constraint("PointOnObject", 0, 3, -2),
    Sketcher.Constraint("Diameter", 0, 120.0),
    Sketcher.Constraint("DistanceY", -1, 1, 0, 3, 100.0),
])
pad29 = body29.newObject("PartDesign::Pad", "Pad028")
pad29.Profile = sketch29
pad29.Length = 12
pad29.Reversed = True
body30 = doc.addObject("PartDesign::Body", "Body029")

# Sketch on XZ plane
sketch30 = body30.newObject("Sketcher::SketchObject", "Sketch029")
sketch30.AttachmentSupport = (doc.getObject("XZ_Plane029"), [""])
sketch30.MapMode = "FlatFace"
sketch30.AttachmentOffset = App.Placement(App.Vector(0, 0, -750), App.Rotation())
sketch30.addGeometry(Part.Circle(App.Vector(0, 100, 0), App.Vector(0, 0, 1), 13), False)
sketch30.addConstraint([
    Sketcher.Constraint("PointOnObject", 0, 3, -2),
    Sketcher.Constraint("Diameter", 0, 26.0),
    Sketcher.Constraint("DistanceY", -1, 1, 0, 3, 100.0),
])
pad30 = body30.newObject("PartDesign::Pad", "Pad029")
pad30.Profile = sketch30
pad30.Length = 50
pad30.Reversed = True
body31 = doc.addObject("PartDesign::Body", "Body030")

# Sketch on XZ plane
sketch31 = body31.newObject("Sketcher::SketchObject", "Sketch030")
sketch31.AttachmentSupport = (doc.getObject("XZ_Plane030"), [""])
sketch31.MapMode = "FlatFace"
sketch31.AttachmentOffset = App.Placement(App.Vector(0, 0, -450), App.Rotation())
sketch31.addGeometry(Part.Circle(App.Vector(230, 100, 0), App.Vector(0, 0, 1), 35), False)
sketch31.addConstraint([
    Sketcher.Constraint("Diameter", 0, 70.0),
    Sketcher.Constraint("DistanceX", -1, 1, 0, 3, 230.0),
    Sketcher.Constraint("DistanceY", -1, 1, 0, 3, 100.0),
])
pad31 = body31.newObject("PartDesign::Pad", "Pad030")
pad31.Profile = sketch31
pad31.Length = 300
pad31.Reversed = True
body32 = doc.addObject("PartDesign::Body", "Body031")

# Sketch on XZ plane
sketch32 = body32.newObject("Sketcher::SketchObject", "Sketch031")
sketch32.AttachmentSupport = (doc.getObject("XZ_Plane031"), [""])
sketch32.MapMode = "FlatFace"
sketch32.AttachmentOffset = App.Placement(App.Vector(0, 0, -519), App.Rotation())
sketch32.addGeometry(Part.Circle(App.Vector(230, 100, 0), App.Vector(0, 0, 1), 60), False)
sketch32.addConstraint([
    Sketcher.Constraint("Diameter", 0, 120.0),
    Sketcher.Constraint("DistanceX", -1, 1, 0, 3, 230.0),
    Sketcher.Constraint("DistanceY", -1, 1, 0, 3, 100.0),
])
pad32 = body32.newObject("PartDesign::Pad", "Pad031")
pad32.Profile = sketch32
pad32.Length = 12
pad32.Reversed = True
body33 = doc.addObject("PartDesign::Body", "Body032")

# Sketch on XZ plane
sketch33 = body33.newObject("Sketcher::SketchObject", "Sketch032")
sketch33.AttachmentSupport = (doc.getObject("XZ_Plane032"), [""])
sketch33.MapMode = "FlatFace"
sketch33.AttachmentOffset = App.Placement(App.Vector(0, 0, -594), App.Rotation())
sketch33.addGeometry(Part.Circle(App.Vector(230, 100, 0), App.Vector(0, 0, 1), 60), False)
sketch33.addConstraint([
    Sketcher.Constraint("Diameter", 0, 120.0),
    Sketcher.Constraint("DistanceX", -1, 1, 0, 3, 230.0),
    Sketcher.Constraint("DistanceY", -1, 1, 0, 3, 100.0),
])
pad33 = body33.newObject("PartDesign::Pad", "Pad032")
pad33.Profile = sketch33
pad33.Length = 12
pad33.Reversed = True
body34 = doc.addObject("PartDesign::Body", "Body033")

# Sketch on XZ plane
sketch34 = body34.newObject("Sketcher::SketchObject", "Sketch033")
sketch34.AttachmentSupport = (doc.getObject("XZ_Plane033"), [""])
sketch34.MapMode = "FlatFace"
sketch34.AttachmentOffset = App.Placement(App.Vector(0, 0, -669), App.Rotation())
sketch34.addGeometry(Part.Circle(App.Vector(230, 100, 0), App.Vector(0, 0, 1), 60), False)
sketch34.addConstraint([
    Sketcher.Constraint("Diameter", 0, 120.0),
    Sketcher.Constraint("DistanceX", -1, 1, 0, 3, 230.0),
    Sketcher.Constraint("DistanceY", -1, 1, 0, 3, 100.0),
])
pad34 = body34.newObject("PartDesign::Pad", "Pad033")
pad34.Profile = sketch34
pad34.Length = 12
pad34.Reversed = True
body35 = doc.addObject("PartDesign::Body", "Body034")

# Sketch on XZ plane
sketch35 = body35.newObject("Sketcher::SketchObject", "Sketch034")
sketch35.AttachmentSupport = (doc.getObject("XZ_Plane034"), [""])
sketch35.MapMode = "FlatFace"
sketch35.AttachmentOffset = App.Placement(App.Vector(0, 0, -750), App.Rotation())
sketch35.addGeometry(Part.Circle(App.Vector(230, 100, 0), App.Vector(0, 0, 1), 13), False)
sketch35.addConstraint([
    Sketcher.Constraint("Diameter", 0, 26.0),
    Sketcher.Constraint("DistanceX", -1, 1, 0, 3, 230.0),
    Sketcher.Constraint("DistanceY", -1, 1, 0, 3, 100.0),
])
pad35 = body35.newObject("PartDesign::Pad", "Pad034")
pad35.Profile = sketch35
pad35.Length = 50
pad35.Reversed = True
body36 = doc.addObject("PartDesign::Body", "Body035")

# Sketch on XZ plane
sketch36 = body36.newObject("Sketcher::SketchObject", "Sketch035")
sketch36.AttachmentSupport = (doc.getObject("XZ_Plane035"), [""])
sketch36.MapMode = "FlatFace"
sketch36.AttachmentOffset = App.Placement(App.Vector(0, 0, -450), App.Rotation())
sketch36.addGeometry(Part.Circle(App.Vector(290, 115, 0), App.Vector(0, 0, 1), 10), False)
sketch36.addConstraint([
    Sketcher.Constraint("Diameter", 0, 20.0),
    Sketcher.Constraint("DistanceX", -1, 1, 0, 3, 290.0),
    Sketcher.Constraint("DistanceY", -1, 1, 0, 3, 115.0),
])
pad36 = body36.newObject("PartDesign::Pad", "Pad035")
pad36.Profile = sketch36
pad36.Length = 700
pad36.Reversed = True
body37 = doc.addObject("PartDesign::Body", "Body036")

# Sketch on XZ plane
sketch37 = body37.newObject("Sketcher::SketchObject", "Sketch036")
sketch37.AttachmentSupport = (doc.getObject("XZ_Plane036"), [""])
sketch37.MapMode = "FlatFace"
sketch37.AttachmentOffset = App.Placement(App.Vector(0, 0, -1150), App.Rotation())
sketch37.addGeometry(Part.Circle(App.Vector(290, 115, 0), App.Vector(0, 0, 1), 45), False)
sketch37.addConstraint([
    Sketcher.Constraint("Diameter", 0, 90.0),
    Sketcher.Constraint("DistanceX", -1, 1, 0, 3, 290.0),
    Sketcher.Constraint("DistanceY", -1, 1, 0, 3, 115.0),
])
pad37 = body37.newObject("PartDesign::Pad", "Pad036")
pad37.Profile = sketch37
pad37.Length = 90
pad37.Reversed = True

doc.recompute()
